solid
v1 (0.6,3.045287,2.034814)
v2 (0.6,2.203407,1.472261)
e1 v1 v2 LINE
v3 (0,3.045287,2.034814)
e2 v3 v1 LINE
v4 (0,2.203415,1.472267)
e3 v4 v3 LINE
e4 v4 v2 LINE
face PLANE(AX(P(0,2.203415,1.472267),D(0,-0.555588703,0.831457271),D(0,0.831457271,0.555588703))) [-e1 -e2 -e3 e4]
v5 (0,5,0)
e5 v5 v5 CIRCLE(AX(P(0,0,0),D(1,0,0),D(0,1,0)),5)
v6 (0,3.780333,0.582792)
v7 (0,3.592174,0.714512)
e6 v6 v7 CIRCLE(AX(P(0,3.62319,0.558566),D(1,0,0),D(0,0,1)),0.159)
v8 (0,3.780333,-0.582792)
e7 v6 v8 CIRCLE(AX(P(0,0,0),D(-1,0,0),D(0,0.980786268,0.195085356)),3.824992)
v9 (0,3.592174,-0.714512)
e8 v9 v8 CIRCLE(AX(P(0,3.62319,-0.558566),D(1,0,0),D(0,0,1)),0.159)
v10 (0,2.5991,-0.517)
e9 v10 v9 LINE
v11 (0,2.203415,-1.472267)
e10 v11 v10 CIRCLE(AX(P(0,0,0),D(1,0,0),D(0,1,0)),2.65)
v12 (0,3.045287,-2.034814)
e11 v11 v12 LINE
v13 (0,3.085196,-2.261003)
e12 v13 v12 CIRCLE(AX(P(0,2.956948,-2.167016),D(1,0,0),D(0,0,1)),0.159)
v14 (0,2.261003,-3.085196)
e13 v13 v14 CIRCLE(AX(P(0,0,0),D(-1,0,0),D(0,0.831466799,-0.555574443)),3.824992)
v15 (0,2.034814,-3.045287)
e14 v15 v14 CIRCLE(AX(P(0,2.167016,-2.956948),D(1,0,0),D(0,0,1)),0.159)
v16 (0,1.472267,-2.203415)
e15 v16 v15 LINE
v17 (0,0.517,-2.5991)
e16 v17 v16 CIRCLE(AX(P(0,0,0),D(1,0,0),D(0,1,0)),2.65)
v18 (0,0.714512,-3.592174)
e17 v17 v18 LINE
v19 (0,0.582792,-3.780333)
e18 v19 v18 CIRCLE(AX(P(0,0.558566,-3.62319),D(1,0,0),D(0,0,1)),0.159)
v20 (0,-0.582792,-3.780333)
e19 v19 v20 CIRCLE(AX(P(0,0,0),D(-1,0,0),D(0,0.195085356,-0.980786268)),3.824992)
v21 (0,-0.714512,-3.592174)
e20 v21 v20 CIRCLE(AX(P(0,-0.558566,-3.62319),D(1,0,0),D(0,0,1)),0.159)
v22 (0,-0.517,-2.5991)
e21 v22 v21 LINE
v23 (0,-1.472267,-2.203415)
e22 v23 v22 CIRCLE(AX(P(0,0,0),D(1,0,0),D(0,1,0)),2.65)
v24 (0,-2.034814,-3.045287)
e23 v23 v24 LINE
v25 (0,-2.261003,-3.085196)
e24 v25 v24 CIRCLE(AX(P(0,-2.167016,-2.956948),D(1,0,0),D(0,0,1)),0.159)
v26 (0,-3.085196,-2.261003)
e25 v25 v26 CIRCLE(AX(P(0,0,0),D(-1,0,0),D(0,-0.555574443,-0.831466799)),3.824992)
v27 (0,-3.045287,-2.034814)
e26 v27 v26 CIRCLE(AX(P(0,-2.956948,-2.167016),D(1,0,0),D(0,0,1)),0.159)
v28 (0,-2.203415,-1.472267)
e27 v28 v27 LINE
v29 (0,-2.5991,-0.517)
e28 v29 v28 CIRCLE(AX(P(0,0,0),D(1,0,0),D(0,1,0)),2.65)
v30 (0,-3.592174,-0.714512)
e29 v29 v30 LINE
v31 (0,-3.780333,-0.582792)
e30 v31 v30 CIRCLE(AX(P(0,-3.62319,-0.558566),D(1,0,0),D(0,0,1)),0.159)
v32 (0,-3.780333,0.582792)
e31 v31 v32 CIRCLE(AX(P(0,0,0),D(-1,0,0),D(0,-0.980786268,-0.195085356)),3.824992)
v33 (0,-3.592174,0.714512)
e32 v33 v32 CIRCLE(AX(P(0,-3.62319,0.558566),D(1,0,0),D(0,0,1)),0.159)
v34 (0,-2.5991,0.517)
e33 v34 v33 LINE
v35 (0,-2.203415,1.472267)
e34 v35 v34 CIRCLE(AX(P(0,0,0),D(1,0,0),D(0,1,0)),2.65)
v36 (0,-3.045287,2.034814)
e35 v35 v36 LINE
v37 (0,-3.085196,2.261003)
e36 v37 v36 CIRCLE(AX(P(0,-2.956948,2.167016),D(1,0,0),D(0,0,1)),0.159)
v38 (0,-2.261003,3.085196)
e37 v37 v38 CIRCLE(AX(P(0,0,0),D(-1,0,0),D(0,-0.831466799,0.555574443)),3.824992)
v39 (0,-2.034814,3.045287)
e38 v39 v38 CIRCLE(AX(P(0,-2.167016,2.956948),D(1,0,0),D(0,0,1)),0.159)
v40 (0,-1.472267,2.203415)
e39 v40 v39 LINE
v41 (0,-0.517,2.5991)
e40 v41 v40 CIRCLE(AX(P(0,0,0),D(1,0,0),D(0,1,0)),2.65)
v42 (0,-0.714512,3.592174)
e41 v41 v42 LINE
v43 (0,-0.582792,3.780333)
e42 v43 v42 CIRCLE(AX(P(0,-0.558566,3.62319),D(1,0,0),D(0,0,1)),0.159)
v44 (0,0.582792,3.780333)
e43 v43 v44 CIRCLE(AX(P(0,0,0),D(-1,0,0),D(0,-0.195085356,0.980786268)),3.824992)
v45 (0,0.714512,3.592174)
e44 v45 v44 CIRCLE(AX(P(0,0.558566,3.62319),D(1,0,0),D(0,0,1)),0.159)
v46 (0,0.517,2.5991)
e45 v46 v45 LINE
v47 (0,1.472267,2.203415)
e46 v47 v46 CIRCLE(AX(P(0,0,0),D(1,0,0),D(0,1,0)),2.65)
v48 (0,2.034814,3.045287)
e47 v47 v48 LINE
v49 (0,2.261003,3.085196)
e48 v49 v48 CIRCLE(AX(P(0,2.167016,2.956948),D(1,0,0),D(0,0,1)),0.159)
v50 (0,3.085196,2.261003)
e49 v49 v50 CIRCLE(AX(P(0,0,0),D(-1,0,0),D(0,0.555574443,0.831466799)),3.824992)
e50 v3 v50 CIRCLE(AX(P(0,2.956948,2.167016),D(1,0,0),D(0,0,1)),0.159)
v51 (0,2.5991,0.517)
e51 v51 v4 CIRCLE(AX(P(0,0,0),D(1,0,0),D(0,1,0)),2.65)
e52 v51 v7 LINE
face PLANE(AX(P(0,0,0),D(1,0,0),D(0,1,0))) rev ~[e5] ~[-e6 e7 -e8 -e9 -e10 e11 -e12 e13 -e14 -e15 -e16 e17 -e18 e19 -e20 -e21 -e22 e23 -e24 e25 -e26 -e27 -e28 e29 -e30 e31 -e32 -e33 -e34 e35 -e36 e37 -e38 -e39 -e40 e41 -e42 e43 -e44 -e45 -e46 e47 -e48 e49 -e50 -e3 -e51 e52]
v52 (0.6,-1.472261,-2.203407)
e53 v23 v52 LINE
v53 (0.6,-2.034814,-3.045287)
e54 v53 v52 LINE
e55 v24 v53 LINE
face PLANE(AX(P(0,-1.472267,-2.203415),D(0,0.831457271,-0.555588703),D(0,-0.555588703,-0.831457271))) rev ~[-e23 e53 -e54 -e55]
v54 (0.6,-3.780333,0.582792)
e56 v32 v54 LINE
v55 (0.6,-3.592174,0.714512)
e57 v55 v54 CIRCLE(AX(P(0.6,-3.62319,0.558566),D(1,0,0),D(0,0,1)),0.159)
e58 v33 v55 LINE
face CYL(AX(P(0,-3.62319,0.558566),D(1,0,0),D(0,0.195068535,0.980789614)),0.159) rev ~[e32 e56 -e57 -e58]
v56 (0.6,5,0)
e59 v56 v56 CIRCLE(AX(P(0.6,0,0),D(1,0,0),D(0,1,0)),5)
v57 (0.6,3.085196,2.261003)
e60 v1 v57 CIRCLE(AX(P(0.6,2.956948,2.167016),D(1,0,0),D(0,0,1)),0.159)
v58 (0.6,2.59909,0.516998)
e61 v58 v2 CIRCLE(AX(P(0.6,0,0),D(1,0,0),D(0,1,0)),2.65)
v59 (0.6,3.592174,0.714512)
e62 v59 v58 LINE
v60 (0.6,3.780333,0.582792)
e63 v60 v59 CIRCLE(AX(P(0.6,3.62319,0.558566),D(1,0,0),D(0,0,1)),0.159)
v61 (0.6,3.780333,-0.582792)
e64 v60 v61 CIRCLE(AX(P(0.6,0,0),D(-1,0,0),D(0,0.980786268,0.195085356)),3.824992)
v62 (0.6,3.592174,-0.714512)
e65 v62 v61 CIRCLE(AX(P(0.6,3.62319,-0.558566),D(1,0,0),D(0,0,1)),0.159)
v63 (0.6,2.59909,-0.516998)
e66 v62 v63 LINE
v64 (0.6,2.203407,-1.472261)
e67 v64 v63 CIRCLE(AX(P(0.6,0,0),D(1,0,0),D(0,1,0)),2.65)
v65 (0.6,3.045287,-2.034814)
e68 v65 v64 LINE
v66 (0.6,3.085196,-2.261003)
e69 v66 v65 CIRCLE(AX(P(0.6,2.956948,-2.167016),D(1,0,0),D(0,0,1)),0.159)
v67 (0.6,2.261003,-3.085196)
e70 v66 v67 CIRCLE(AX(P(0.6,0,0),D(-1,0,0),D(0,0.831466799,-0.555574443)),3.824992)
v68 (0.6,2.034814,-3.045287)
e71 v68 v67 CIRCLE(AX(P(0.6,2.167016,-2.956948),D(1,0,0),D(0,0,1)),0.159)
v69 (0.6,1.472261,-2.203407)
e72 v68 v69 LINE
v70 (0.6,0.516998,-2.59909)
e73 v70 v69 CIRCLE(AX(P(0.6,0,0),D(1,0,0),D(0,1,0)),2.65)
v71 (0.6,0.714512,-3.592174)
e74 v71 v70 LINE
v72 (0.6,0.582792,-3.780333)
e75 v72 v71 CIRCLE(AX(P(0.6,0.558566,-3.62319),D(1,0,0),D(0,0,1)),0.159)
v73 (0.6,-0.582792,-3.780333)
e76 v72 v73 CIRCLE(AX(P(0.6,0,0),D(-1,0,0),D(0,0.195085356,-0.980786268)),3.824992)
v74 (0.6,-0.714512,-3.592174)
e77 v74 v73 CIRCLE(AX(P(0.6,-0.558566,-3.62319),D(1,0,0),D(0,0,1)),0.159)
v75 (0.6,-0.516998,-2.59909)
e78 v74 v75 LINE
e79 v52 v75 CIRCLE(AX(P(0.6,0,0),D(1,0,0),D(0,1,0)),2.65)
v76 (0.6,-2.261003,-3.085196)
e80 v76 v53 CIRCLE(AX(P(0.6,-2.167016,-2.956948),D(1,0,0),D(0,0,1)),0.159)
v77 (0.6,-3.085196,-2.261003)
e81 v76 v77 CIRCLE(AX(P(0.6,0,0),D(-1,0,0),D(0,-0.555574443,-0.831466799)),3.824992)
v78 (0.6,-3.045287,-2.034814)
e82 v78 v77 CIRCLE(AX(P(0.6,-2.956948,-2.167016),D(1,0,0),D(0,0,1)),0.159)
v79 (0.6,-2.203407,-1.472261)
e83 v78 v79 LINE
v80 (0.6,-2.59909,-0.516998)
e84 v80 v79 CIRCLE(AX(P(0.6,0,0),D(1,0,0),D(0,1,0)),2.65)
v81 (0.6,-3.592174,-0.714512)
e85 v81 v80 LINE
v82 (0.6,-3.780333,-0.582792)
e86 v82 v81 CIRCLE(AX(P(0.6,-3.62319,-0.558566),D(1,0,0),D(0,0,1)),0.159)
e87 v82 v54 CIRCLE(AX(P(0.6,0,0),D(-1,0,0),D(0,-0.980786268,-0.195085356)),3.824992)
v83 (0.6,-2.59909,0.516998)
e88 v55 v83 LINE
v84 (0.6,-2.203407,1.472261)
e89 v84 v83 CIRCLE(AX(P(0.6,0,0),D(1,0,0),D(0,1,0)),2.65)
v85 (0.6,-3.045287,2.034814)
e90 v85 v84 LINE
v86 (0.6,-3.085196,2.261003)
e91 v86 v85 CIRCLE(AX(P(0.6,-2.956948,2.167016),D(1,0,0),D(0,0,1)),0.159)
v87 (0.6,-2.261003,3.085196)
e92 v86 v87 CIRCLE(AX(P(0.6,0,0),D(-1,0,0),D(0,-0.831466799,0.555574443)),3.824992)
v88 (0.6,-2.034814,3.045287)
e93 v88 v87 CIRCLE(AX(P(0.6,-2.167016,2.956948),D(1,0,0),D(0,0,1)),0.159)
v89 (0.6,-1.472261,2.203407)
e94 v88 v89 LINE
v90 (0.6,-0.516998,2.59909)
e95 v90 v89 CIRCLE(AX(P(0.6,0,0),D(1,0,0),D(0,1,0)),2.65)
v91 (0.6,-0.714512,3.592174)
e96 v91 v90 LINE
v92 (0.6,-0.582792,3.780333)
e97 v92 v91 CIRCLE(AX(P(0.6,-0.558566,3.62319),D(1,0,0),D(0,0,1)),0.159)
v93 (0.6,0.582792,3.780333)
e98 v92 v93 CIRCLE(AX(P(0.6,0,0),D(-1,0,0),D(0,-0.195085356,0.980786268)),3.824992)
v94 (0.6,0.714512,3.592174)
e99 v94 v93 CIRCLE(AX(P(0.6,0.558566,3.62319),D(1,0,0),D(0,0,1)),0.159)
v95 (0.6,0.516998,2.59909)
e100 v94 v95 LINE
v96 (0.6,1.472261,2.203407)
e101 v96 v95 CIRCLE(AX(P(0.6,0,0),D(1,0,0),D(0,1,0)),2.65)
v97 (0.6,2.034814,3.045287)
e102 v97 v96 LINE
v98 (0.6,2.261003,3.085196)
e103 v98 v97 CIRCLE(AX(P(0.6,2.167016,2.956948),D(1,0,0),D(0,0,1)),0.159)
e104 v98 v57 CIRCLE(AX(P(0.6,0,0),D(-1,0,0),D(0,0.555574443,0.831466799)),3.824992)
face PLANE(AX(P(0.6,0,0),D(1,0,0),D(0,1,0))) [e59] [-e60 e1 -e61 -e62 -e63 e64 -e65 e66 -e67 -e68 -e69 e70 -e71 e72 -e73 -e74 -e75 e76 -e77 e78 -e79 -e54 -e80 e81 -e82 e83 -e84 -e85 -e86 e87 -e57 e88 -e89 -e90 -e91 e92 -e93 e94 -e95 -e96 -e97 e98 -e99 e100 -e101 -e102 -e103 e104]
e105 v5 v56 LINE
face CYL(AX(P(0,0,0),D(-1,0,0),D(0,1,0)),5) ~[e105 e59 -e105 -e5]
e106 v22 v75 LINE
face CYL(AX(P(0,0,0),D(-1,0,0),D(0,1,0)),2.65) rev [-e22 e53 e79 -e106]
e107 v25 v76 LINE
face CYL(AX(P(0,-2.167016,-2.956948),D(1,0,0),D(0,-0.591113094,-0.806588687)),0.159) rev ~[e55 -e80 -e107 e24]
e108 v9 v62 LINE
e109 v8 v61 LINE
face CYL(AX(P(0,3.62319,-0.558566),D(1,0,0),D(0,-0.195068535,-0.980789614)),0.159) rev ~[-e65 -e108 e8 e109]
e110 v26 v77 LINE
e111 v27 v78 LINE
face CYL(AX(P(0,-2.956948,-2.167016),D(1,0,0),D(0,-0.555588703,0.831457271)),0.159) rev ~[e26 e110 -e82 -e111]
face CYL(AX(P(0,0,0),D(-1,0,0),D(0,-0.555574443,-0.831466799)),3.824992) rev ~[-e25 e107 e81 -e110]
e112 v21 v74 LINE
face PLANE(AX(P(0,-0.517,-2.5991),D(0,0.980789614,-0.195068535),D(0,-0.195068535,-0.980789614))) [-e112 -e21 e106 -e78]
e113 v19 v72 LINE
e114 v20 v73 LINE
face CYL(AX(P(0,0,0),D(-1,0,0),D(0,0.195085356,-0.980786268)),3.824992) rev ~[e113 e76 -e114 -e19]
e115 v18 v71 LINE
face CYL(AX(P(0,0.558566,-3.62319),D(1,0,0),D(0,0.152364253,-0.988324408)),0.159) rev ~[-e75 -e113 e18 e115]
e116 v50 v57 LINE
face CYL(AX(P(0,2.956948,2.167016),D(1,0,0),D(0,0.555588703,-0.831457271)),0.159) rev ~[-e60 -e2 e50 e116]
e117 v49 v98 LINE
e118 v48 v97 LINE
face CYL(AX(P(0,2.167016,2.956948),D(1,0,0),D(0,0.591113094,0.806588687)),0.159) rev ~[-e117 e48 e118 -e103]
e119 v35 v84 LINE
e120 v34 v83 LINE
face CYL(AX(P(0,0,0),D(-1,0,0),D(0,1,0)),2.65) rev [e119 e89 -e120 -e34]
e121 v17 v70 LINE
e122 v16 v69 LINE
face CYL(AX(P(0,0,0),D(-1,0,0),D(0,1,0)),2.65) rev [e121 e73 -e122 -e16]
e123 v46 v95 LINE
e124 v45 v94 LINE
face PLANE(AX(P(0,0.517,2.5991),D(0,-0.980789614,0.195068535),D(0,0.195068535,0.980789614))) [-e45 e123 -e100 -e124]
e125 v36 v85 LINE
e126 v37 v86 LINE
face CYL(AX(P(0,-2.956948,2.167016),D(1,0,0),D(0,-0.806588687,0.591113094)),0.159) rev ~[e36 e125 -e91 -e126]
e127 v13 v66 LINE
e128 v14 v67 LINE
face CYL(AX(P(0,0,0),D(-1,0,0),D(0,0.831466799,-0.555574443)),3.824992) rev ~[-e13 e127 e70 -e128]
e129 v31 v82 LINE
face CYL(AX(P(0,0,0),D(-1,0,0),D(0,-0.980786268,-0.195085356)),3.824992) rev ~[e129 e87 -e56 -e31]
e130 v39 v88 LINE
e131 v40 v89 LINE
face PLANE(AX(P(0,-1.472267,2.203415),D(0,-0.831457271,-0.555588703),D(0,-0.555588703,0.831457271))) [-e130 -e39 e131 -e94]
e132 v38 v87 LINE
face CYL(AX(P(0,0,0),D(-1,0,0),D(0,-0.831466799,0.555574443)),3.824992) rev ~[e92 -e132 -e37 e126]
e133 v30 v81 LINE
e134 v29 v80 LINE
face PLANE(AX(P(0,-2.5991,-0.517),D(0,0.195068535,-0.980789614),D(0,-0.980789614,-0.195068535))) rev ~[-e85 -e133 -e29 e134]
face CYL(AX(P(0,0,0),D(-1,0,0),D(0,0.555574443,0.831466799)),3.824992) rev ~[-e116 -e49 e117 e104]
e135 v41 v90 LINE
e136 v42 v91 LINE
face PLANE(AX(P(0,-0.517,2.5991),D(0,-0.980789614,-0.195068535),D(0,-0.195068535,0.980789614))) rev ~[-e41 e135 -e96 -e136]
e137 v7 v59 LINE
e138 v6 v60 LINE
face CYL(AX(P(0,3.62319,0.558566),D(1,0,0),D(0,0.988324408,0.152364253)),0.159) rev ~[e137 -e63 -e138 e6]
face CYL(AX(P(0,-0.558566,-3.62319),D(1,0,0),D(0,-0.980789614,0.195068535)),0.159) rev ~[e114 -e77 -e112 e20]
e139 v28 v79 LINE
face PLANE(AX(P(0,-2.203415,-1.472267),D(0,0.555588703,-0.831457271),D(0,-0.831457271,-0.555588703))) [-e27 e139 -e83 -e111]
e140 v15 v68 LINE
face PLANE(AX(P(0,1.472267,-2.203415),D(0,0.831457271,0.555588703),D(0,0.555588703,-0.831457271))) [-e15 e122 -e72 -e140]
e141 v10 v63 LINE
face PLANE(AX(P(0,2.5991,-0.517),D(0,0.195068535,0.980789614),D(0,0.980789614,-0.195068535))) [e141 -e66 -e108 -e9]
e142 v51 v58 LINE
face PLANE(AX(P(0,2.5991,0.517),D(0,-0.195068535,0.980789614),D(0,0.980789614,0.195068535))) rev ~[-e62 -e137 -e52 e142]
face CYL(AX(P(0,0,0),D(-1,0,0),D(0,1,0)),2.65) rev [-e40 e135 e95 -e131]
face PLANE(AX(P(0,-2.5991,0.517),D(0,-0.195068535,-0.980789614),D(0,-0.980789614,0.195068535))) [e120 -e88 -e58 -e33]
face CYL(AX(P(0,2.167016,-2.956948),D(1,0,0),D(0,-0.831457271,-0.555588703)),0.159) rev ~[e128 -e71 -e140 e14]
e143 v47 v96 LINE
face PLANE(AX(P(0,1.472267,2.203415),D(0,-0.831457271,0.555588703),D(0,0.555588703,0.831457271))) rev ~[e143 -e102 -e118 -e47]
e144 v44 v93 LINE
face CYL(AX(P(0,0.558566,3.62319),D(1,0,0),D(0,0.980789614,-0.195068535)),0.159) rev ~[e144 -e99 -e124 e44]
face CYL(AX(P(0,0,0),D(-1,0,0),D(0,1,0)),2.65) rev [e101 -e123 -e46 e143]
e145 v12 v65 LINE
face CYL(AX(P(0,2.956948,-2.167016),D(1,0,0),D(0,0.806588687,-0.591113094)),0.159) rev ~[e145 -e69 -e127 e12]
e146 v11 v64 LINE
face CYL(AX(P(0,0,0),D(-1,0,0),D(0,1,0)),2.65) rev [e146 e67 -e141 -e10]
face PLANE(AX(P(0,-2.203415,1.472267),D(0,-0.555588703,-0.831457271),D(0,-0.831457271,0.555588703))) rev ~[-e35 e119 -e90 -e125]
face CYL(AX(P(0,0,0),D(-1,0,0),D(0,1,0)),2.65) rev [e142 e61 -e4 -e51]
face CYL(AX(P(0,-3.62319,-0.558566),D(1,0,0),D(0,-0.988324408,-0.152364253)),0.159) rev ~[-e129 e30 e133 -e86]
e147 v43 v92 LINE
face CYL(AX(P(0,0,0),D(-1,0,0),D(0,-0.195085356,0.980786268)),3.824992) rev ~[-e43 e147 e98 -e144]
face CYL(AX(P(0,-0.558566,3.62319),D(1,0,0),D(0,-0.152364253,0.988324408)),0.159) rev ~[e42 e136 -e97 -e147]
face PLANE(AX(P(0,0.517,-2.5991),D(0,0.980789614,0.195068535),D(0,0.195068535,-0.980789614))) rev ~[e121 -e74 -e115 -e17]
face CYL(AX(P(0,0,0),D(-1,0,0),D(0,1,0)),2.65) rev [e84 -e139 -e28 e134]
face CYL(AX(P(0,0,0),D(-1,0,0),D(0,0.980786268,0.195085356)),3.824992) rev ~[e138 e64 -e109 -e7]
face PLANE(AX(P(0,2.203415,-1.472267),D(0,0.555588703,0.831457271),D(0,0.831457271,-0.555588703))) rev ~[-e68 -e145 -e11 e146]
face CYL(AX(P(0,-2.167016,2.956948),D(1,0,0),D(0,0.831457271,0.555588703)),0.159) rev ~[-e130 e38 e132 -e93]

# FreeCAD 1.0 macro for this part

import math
import FreeCAD as App
import Part
import Sketcher

V = App.Vector


def edges_at(feature, points):
    """Names of the edges that pass closest to the given points."""
    edges = feature.Shape.Edges
    near = lambda p: min(range(len(edges)), key=lambda i: edges[i].distToShape(Part.Vertex(*p))[0])
    return sorted({f"Edge{near(p) + 1}" for p in points})

doc = App.newDocument("Part")
body = doc.addObject("PartDesign::Body", "Body")

# Sketch on YZ plane
sketch1 = body.newObject("Sketcher::SketchObject", "Sketch")
sketch1.AttachmentSupport = (doc.getObject("YZ_Plane"), [""])
sketch1.MapMode = "FlatFace"
sketch1.addGeometry([
    Part.Circle(V(0, 0, 0), V(0, 0, 1), 5),
    Part.Circle(V(0, 0, 0), V(0, 0, 1), 2.6),
], False)
sketch1.addConstraint([
    Sketcher.Constraint("Coincident", 0, 3, -1, 1),
    Sketcher.Constraint("Coincident", 1, 3, -1, 1),
    Sketcher.Constraint("Diameter", 0, 10.0),
    Sketcher.Constraint("Diameter", 1, 5.3),
])
pad1 = body.newObject("PartDesign::Pad", "Pad")
pad1.Profile = sketch1
pad1.Length = 0.6

# Sketch on YZ plane
sketch2 = body.newObject("Sketcher::SketchObject", "Sketch001")
sketch2.AttachmentSupport = (doc.getObject("YZ_Plane"), [""])
sketch2.MapMode = "FlatFace"
sketch2.addGeometry([
    Part.ArcOfCircle(Part.Circle(V(0, 0, 0), V(0, 0, 1), 2.6), math.radians(-11), math.radians(11)),
    Part.LineSegment(V(2.6, 0.5, 0), V(3.8, 0.7, 0)),
    Part.ArcOfCircle(Part.Circle(V(0, 0, 0), V(0, 0, 1), 3.8), math.radians(-11), math.radians(11)),
    Part.LineSegment(V(3.8, -0.7, 0), V(2.6, -0.5, 0)),
], False)
sketch2.addConstraint([
    Sketcher.Constraint("Coincident", 0, 2, 1, 1),
    Sketcher.Constraint("Coincident", 1, 2, 2, 2),
    Sketcher.Constraint("Coincident", 2, 1, 3, 1),
    Sketcher.Constraint("Coincident", 3, 2, 0, 1),
    Sketcher.Constraint("Coincident", 0, 3, -1, 1),
    Sketcher.Constraint("Coincident", 2, 3, -1, 1),
    Sketcher.Constraint("Vertical", 1, 2, 2, 1),
    Sketcher.Constraint("Vertical", 0, 2, 3, 2),
    Sketcher.Constraint("Radius", 2, 3.825),
    Sketcher.Constraint("Radius", 0, 2.65),
    Sketcher.Constraint("DistanceX", -1, 1, 0, 2, 2.599),
    Sketcher.Constraint("DistanceX", -1, 1, 1, 2, 3.7515),
])
pocket1 = body.newObject("PartDesign::Pocket", "Pocket")
pocket1.Profile = sketch2
pocket1.Type = "ThroughAll"
pocket1.Midplane = True
doc.recompute()

fillet = body.newObject("PartDesign::Fillet", "Fillet")
fillet.Base = (pocket1, edges_at(pocket1, [(0.3, 3.752, 0.746), (0.3, 3.752, -0.746)]))
fillet.Radius = 0.159
doc.recompute()

polarpattern = body.newObject("PartDesign::PolarPattern", "PolarPattern")
polarpattern.Originals = [pocket1, fillet]
polarpattern.Axis = (doc.getObject("X_Axis"), [""])
polarpattern.Angle = 360
polarpattern.Occurrences = 8
body.Tip = polarpattern

doc.recompute()
